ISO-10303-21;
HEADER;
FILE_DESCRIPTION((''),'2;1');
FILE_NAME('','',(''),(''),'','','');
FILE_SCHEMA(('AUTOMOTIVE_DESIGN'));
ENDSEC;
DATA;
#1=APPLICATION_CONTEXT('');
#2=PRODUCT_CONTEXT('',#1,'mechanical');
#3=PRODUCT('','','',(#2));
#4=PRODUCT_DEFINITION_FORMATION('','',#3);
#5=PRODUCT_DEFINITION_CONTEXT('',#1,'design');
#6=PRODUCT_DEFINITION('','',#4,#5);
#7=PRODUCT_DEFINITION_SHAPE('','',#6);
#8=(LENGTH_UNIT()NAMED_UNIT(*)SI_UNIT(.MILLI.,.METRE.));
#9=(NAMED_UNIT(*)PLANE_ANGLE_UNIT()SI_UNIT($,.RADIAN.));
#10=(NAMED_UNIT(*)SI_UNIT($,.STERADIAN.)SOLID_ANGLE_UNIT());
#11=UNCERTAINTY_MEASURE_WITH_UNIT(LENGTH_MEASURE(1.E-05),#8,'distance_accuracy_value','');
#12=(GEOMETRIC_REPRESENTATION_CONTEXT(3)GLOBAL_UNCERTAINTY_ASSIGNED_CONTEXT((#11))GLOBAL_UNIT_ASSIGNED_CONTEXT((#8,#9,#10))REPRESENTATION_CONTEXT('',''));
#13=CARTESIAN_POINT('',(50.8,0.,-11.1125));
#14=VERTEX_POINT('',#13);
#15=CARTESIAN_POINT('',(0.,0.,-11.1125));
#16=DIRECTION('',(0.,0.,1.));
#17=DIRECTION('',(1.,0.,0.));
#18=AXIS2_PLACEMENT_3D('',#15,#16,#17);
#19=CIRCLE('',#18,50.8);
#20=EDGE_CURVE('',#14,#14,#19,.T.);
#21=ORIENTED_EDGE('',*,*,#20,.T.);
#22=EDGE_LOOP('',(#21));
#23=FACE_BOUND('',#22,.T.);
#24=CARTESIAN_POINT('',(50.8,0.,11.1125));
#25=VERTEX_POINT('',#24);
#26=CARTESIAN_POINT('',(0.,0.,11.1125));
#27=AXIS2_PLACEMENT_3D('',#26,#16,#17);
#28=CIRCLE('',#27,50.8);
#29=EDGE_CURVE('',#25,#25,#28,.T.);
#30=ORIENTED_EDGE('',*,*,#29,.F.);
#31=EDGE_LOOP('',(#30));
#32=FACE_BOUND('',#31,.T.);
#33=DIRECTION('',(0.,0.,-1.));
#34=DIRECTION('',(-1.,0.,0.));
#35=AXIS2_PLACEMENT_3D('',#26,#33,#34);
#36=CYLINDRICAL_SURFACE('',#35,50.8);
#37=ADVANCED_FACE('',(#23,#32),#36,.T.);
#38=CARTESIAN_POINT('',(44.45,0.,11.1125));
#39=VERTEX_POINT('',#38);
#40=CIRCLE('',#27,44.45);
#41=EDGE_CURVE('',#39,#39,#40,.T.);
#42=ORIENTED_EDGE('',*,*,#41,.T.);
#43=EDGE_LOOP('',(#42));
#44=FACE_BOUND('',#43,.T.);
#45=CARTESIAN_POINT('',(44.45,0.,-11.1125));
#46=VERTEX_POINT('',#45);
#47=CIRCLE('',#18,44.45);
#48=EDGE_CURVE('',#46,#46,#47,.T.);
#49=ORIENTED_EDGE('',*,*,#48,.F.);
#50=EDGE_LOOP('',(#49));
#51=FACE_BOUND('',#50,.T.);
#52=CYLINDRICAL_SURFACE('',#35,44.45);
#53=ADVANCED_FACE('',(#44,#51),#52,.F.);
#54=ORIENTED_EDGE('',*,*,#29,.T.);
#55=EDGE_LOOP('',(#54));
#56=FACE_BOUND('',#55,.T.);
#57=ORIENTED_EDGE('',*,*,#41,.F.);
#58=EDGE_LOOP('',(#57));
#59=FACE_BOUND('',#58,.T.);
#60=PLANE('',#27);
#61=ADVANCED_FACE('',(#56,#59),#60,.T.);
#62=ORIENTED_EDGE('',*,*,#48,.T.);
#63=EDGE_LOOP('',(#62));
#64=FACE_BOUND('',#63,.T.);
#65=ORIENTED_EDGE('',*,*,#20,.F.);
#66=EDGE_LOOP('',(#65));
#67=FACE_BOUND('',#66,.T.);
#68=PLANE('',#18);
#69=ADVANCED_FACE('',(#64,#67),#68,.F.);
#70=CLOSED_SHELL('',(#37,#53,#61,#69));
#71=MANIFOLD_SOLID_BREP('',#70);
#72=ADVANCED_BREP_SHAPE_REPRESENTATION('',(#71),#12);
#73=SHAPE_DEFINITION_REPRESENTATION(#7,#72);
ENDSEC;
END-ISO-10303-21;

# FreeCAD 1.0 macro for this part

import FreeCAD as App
import Part
import Sketcher
Q = App.Units.Quantity

doc = App.newDocument("Part")
body = doc.addObject("PartDesign::Body", "Body")

# Sketch on XY plane
sketch1 = body.newObject("Sketcher::SketchObject", "Sketch")
sketch1.AttachmentSupport = (doc.getObject("XY_Plane"), [""])
sketch1.MapMode = "FlatFace"
sketch1.addGeometry([
    Part.Circle(App.Vector(0, 0, 0), App.Vector(0, 0, 1), 51),
    Part.Circle(App.Vector(0, 0, 0), App.Vector(0, 0, 1), 44),
], False)
sketch1.addConstraint([
    Sketcher.Constraint("Coincident", 0, 3, -1, 1),
    Sketcher.Constraint("Coincident", 1, 3, -1, 1),
    Sketcher.Constraint("Diameter", 0, Q("4 in")),
    Sketcher.Constraint("Diameter", 1, Q("3.5 in")),
])
pad1 = body.newObject("PartDesign::Pad", "Pad")
pad1.Profile = sketch1
pad1.Length = Q("0.875 in")
pad1.Midplane = True

doc.recompute()
